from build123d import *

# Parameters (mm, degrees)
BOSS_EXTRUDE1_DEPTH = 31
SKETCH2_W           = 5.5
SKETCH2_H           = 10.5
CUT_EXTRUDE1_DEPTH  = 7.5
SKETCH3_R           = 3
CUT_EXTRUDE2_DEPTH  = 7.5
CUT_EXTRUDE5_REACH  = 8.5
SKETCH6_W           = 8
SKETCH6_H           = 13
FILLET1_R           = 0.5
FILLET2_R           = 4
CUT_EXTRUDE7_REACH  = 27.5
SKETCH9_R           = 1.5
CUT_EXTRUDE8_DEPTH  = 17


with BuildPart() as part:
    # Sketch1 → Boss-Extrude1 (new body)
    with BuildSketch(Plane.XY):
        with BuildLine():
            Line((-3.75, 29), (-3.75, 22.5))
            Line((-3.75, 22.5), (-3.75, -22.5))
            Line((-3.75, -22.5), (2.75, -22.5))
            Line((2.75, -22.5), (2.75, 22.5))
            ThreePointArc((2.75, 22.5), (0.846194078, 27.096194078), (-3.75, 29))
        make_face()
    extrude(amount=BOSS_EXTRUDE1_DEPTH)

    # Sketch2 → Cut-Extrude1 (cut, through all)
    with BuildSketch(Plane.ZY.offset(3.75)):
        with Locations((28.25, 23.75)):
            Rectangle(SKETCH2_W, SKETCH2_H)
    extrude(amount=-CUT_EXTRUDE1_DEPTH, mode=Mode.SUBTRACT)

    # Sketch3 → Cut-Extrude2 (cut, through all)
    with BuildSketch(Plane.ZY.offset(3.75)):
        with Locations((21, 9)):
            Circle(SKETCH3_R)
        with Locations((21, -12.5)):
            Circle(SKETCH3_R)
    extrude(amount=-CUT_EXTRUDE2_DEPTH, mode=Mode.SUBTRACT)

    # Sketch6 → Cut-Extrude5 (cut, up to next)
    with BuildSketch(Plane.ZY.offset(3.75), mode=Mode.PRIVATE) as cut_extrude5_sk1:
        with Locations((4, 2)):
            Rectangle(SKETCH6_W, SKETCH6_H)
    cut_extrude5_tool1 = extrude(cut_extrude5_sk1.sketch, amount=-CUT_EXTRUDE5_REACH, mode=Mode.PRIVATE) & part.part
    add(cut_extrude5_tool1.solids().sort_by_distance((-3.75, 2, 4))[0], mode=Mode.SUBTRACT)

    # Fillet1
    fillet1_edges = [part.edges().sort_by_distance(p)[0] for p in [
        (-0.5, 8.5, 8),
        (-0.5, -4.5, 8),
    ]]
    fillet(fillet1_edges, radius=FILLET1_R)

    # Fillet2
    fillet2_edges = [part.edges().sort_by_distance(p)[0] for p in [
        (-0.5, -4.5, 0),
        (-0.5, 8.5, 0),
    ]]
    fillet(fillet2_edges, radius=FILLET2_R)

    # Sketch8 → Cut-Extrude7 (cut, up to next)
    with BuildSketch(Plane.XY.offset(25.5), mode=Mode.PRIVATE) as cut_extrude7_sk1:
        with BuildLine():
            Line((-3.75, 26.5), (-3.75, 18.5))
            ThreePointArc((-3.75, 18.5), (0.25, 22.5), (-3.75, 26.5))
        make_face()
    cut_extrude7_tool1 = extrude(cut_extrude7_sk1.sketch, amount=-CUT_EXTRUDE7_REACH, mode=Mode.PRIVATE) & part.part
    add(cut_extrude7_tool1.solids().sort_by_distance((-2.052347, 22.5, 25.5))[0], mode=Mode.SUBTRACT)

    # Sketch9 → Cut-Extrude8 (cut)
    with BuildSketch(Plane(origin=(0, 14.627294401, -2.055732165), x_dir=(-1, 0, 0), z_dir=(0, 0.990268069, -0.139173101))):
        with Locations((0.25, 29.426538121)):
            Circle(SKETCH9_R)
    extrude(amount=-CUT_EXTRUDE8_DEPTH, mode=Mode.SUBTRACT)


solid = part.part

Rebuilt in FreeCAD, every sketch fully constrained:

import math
import FreeCAD as App
import Part
import Sketcher
from FreeCAD import Vector


def edges_at(feature, points):
    """Names of the edges that pass closest to the given points."""
    edges = feature.Shape.Edges
    near = lambda p: min(range(len(edges)), key=lambda i: edges[i].distToShape(Part.Vertex(*p))[0])
    return sorted({f"Edge{near(p) + 1}" for p in points})


def add_polygon(sketch, points):
    """Adds a closed chain of lines whose ends are joined by coincident constraints."""
    first, n = sketch.GeometryCount, len(points)
    for a, b in zip(points, points[1:] + points[:1]):
        sketch.addGeometry(Part.LineSegment(App.Vector(*a, 0), App.Vector(*b, 0)), False)
    for i in range(n):
        sketch.addConstraint(Sketcher.Constraint("Coincident", first + i, 2, first + (i + 1) % n, 1))

doc = App.newDocument("Part")
body = doc.addObject("PartDesign::Body", "Body")

# Sketch on XY plane
sketch1 = body.newObject("Sketcher::SketchObject", "Sketch")
sketch1.AttachmentSupport = (doc.getObject("XY_Plane"), [""])
sketch1.MapMode = "FlatFace"
sketch1.addGeometry(Part.LineSegment(Vector(-4, 29, 0), Vector(-4, -22, 0)), False)
sketch1.addGeometry(Part.LineSegment(Vector(-4, -22, 0), Vector(3, -22, 0)), False)
sketch1.addGeometry(Part.LineSegment(Vector(3, -22, 0), Vector(3, 22, 0)), False)
sketch1.addGeometry(Part.ArcOfCircle(Part.Circle(Vector(-4, 23, 0), Vector(0, 0, 1), 6), math.radians(0), math.radians(90)), False)
sketch1.addConstraint(Sketcher.Constraint("Coincident", 0, 2, 1, 1))
sketch1.addConstraint(Sketcher.Constraint("Coincident", 1, 2, 2, 1))
sketch1.addConstraint(Sketcher.Constraint("Tangent", 2, 2, 3, 1))
sketch1.addConstraint(Sketcher.Constraint("Coincident", 3, 2, 0, 1))
sketch1.addConstraint(Sketcher.Constraint("Vertical", 0))
sketch1.addConstraint(Sketcher.Constraint("Horizontal", 1))
sketch1.addConstraint(Sketcher.Constraint("Vertical", 2))
sketch1.addConstraint(Sketcher.Constraint("Vertical", 3, 3, 0, 2))
sketch1.addConstraint(Sketcher.Constraint("Radius", 3, 6.5))
sketch1.addConstraint(Sketcher.Constraint("DistanceY", 2, 1, 2, 2, 45.0))
sketch1.addConstraint(Sketcher.Constraint("DistanceY", -1, 1, 3, 2, 29.0))
sketch1.addConstraint(Sketcher.Constraint("DistanceX", 3, 3, -1, 1, 3.75))
pad1 = body.newObject("PartDesign::Pad", "Pad")
pad1.Profile = sketch1
pad1.Length = 31

# Sketch on YZ plane
sketch2 = body.newObject("Sketcher::SketchObject", "Sketch001")
sketch2.AttachmentSupport = (doc.getObject("YZ_Plane"), [""])
sketch2.MapMode = "FlatFace"
sketch2.AttachmentOffset = App.Placement(Vector(0, 0, -3.75), App.Rotation())
add_polygon(sketch2, [(29, 26), (18, 26), (18, 31), (29, 31)])  # lines 0-3
sketch2.addConstraint(Sketcher.Constraint("Horizontal", 0))
sketch2.addConstraint(Sketcher.Constraint("Vertical", 1))
sketch2.addConstraint(Sketcher.Constraint("Horizontal", 2))
sketch2.addConstraint(Sketcher.Constraint("Vertical", 3))
sketch2.addConstraint(Sketcher.Constraint("DistanceX", 0, 2, 0, 1, 10.5))
sketch2.addConstraint(Sketcher.Constraint("DistanceY", 1, 1, 1, 2, 5.5))
sketch2.addConstraint(Sketcher.Constraint("DistanceY", -1, 1, 1, 2, 31.0))
sketch2.addConstraint(Sketcher.Constraint("DistanceX", -1, 1, 2, 2, 29.0))
pocket1 = body.newObject("PartDesign::Pocket", "Pocket")
pocket1.Profile = sketch2
pocket1.Type = "ThroughAll"
pocket1.Reversed = True

# Sketch on YZ plane
sketch3 = body.newObject("Sketcher::SketchObject", "Sketch002")
sketch3.AttachmentSupport = (doc.getObject("YZ_Plane"), [""])
sketch3.MapMode = "FlatFace"
sketch3.AttachmentOffset = App.Placement(Vector(0, 0, -3.75), App.Rotation())
sketch3.addGeometry(Part.Circle(Vector(9, 21, 0), Vector(0, 0, 1), 3), False)
sketch3.addGeometry(Part.Circle(Vector(-12.5, 21, 0), Vector(0, 0, 1), 3), False)
sketch3.addConstraint(Sketcher.Constraint("Equal", 0, 1))
sketch3.addConstraint(Sketcher.Constraint("Horizontal", 0, 3, 1, 3))
sketch3.addConstraint(Sketcher.Constraint("Diameter", 0, 6.0))
sketch3.addConstraint(Sketcher.Constraint("DistanceX", -1, 1, 0, 3, 9.0))
sketch3.addConstraint(Sketcher.Constraint("DistanceY", -1, 1, 0, 3, 21.0))
sketch3.addConstraint(Sketcher.Constraint("DistanceX", 1, 3, -1, 1, 12.5))
pocket2 = body.newObject("PartDesign::Pocket", "Pocket001")
pocket2.Profile = sketch3
pocket2.Type = "ThroughAll"
pocket2.Reversed = True

# Sketch on YZ plane
sketch4 = body.newObject("Sketcher::SketchObject", "Sketch003")
sketch4.AttachmentSupport = (doc.getObject("YZ_Plane"), [""])
sketch4.MapMode = "FlatFace"
sketch4.AttachmentOffset = App.Placement(Vector(0, 0, -3.75), App.Rotation())
add_polygon(sketch4, [(8, 0), (-4, 0), (-4, 8), (8, 8)])  # lines 0-3
sketch4.addConstraint(Sketcher.Constraint("Horizontal", 0))
sketch4.addConstraint(Sketcher.Constraint("Vertical", 1))
sketch4.addConstraint(Sketcher.Constraint("Horizontal", 2))
sketch4.addConstraint(Sketcher.Constraint("Vertical", 3))
sketch4.addConstraint(Sketcher.Constraint("PointOnObject", 0, 2, -1))
sketch4.addConstraint(Sketcher.Constraint("DistanceX", 0, 2, 0, 1, 13.0))
sketch4.addConstraint(Sketcher.Constraint("DistanceY", 1, 1, 1, 2, 8.0))
sketch4.addConstraint(Sketcher.Constraint("DistanceX", 0, 2, -1, 1, 4.5))
pocket3 = body.newObject("PartDesign::Pocket", "Pocket002")
pocket3.Profile = sketch4
pocket3.Type = "UpToFirst"
pocket3.Reversed = True
doc.recompute()

fillet = body.newObject("PartDesign::Fillet", "Fillet")
fillet.Base = (pocket3, edges_at(pocket3, [(-0.5, 8.5, 8), (-0.5, -4.5, 8)]))
fillet.Radius = 0.5
doc.recompute()

fillet2 = body.newObject("PartDesign::Fillet", "Fillet001")
fillet2.Base = (fillet, edges_at(fillet, [(-0.5, -4.5, 0), (-0.5, 8.5, 0)]))
fillet2.Radius = 4

# Sketch on XY plane
sketch5 = body.newObject("Sketcher::SketchObject", "Sketch004")
sketch5.AttachmentSupport = (doc.getObject("XY_Plane"), [""])
sketch5.MapMode = "FlatFace"
sketch5.AttachmentOffset = App.Placement(Vector(0, 0, 25.5), App.Rotation())
sketch5.addGeometry(Part.LineSegment(Vector(-3.8, 26.5, 0), Vector(-3.8, 18.5, 0)), False)
sketch5.addGeometry(Part.ArcOfCircle(Part.Circle(Vector(-3.8, 22.5, 0), Vector(0, 0, 1), 4), math.radians(-90), math.radians(90)), False)
sketch5.addConstraint(Sketcher.Constraint("Coincident", 0, 1, 1, 2))
sketch5.addConstraint(Sketcher.Constraint("Coincident", 1, 1, 0, 2))
sketch5.addConstraint(Sketcher.Constraint("Vertical", 0))
sketch5.addConstraint(Sketcher.Constraint("Vertical", 1, 3, 0, 1))
sketch5.addConstraint(Sketcher.Constraint("Radius", 1, 4.0))
sketch5.addConstraint(Sketcher.Constraint("DistanceY", -1, 1, 1, 3, 22.5))
sketch5.addConstraint(Sketcher.Constraint("DistanceX", 1, 3, -1, 1, 3.75))
pocket4 = body.newObject("PartDesign::Pocket", "Pocket003")
pocket4.Profile = sketch5
pocket4.Type = "UpToFirst"

# Sketch on an angled plane
sketch6 = body.newObject("Sketcher::SketchObject", "Sketch005")
sketch6.Placement = App.Placement(Vector(0, 14.627294, -2.055732), App.Rotation(Vector(-1, 0, 0), Vector(0, 0.139173101, 0.990268069), Vector(0, 0.990268069, -0.139173101), "ZXY"))
sketch6.addGeometry(Part.Circle(Vector(0.2, 29.4, 0), Vector(0, 0, 1), 1.5), False)
sketch6.addConstraint(Sketcher.Constraint("Diameter", 0, 3.0))
sketch6.addConstraint(Sketcher.Constraint("DistanceX", -1, 1, 0, 3, 0.25))
sketch6.addConstraint(Sketcher.Constraint("DistanceY", -1, 1, 0, 3, 29.426538))
pocket5 = body.newObject("PartDesign::Pocket", "Pocket004")
pocket5.Profile = sketch6
pocket5.Length = 17

doc.recompute()
